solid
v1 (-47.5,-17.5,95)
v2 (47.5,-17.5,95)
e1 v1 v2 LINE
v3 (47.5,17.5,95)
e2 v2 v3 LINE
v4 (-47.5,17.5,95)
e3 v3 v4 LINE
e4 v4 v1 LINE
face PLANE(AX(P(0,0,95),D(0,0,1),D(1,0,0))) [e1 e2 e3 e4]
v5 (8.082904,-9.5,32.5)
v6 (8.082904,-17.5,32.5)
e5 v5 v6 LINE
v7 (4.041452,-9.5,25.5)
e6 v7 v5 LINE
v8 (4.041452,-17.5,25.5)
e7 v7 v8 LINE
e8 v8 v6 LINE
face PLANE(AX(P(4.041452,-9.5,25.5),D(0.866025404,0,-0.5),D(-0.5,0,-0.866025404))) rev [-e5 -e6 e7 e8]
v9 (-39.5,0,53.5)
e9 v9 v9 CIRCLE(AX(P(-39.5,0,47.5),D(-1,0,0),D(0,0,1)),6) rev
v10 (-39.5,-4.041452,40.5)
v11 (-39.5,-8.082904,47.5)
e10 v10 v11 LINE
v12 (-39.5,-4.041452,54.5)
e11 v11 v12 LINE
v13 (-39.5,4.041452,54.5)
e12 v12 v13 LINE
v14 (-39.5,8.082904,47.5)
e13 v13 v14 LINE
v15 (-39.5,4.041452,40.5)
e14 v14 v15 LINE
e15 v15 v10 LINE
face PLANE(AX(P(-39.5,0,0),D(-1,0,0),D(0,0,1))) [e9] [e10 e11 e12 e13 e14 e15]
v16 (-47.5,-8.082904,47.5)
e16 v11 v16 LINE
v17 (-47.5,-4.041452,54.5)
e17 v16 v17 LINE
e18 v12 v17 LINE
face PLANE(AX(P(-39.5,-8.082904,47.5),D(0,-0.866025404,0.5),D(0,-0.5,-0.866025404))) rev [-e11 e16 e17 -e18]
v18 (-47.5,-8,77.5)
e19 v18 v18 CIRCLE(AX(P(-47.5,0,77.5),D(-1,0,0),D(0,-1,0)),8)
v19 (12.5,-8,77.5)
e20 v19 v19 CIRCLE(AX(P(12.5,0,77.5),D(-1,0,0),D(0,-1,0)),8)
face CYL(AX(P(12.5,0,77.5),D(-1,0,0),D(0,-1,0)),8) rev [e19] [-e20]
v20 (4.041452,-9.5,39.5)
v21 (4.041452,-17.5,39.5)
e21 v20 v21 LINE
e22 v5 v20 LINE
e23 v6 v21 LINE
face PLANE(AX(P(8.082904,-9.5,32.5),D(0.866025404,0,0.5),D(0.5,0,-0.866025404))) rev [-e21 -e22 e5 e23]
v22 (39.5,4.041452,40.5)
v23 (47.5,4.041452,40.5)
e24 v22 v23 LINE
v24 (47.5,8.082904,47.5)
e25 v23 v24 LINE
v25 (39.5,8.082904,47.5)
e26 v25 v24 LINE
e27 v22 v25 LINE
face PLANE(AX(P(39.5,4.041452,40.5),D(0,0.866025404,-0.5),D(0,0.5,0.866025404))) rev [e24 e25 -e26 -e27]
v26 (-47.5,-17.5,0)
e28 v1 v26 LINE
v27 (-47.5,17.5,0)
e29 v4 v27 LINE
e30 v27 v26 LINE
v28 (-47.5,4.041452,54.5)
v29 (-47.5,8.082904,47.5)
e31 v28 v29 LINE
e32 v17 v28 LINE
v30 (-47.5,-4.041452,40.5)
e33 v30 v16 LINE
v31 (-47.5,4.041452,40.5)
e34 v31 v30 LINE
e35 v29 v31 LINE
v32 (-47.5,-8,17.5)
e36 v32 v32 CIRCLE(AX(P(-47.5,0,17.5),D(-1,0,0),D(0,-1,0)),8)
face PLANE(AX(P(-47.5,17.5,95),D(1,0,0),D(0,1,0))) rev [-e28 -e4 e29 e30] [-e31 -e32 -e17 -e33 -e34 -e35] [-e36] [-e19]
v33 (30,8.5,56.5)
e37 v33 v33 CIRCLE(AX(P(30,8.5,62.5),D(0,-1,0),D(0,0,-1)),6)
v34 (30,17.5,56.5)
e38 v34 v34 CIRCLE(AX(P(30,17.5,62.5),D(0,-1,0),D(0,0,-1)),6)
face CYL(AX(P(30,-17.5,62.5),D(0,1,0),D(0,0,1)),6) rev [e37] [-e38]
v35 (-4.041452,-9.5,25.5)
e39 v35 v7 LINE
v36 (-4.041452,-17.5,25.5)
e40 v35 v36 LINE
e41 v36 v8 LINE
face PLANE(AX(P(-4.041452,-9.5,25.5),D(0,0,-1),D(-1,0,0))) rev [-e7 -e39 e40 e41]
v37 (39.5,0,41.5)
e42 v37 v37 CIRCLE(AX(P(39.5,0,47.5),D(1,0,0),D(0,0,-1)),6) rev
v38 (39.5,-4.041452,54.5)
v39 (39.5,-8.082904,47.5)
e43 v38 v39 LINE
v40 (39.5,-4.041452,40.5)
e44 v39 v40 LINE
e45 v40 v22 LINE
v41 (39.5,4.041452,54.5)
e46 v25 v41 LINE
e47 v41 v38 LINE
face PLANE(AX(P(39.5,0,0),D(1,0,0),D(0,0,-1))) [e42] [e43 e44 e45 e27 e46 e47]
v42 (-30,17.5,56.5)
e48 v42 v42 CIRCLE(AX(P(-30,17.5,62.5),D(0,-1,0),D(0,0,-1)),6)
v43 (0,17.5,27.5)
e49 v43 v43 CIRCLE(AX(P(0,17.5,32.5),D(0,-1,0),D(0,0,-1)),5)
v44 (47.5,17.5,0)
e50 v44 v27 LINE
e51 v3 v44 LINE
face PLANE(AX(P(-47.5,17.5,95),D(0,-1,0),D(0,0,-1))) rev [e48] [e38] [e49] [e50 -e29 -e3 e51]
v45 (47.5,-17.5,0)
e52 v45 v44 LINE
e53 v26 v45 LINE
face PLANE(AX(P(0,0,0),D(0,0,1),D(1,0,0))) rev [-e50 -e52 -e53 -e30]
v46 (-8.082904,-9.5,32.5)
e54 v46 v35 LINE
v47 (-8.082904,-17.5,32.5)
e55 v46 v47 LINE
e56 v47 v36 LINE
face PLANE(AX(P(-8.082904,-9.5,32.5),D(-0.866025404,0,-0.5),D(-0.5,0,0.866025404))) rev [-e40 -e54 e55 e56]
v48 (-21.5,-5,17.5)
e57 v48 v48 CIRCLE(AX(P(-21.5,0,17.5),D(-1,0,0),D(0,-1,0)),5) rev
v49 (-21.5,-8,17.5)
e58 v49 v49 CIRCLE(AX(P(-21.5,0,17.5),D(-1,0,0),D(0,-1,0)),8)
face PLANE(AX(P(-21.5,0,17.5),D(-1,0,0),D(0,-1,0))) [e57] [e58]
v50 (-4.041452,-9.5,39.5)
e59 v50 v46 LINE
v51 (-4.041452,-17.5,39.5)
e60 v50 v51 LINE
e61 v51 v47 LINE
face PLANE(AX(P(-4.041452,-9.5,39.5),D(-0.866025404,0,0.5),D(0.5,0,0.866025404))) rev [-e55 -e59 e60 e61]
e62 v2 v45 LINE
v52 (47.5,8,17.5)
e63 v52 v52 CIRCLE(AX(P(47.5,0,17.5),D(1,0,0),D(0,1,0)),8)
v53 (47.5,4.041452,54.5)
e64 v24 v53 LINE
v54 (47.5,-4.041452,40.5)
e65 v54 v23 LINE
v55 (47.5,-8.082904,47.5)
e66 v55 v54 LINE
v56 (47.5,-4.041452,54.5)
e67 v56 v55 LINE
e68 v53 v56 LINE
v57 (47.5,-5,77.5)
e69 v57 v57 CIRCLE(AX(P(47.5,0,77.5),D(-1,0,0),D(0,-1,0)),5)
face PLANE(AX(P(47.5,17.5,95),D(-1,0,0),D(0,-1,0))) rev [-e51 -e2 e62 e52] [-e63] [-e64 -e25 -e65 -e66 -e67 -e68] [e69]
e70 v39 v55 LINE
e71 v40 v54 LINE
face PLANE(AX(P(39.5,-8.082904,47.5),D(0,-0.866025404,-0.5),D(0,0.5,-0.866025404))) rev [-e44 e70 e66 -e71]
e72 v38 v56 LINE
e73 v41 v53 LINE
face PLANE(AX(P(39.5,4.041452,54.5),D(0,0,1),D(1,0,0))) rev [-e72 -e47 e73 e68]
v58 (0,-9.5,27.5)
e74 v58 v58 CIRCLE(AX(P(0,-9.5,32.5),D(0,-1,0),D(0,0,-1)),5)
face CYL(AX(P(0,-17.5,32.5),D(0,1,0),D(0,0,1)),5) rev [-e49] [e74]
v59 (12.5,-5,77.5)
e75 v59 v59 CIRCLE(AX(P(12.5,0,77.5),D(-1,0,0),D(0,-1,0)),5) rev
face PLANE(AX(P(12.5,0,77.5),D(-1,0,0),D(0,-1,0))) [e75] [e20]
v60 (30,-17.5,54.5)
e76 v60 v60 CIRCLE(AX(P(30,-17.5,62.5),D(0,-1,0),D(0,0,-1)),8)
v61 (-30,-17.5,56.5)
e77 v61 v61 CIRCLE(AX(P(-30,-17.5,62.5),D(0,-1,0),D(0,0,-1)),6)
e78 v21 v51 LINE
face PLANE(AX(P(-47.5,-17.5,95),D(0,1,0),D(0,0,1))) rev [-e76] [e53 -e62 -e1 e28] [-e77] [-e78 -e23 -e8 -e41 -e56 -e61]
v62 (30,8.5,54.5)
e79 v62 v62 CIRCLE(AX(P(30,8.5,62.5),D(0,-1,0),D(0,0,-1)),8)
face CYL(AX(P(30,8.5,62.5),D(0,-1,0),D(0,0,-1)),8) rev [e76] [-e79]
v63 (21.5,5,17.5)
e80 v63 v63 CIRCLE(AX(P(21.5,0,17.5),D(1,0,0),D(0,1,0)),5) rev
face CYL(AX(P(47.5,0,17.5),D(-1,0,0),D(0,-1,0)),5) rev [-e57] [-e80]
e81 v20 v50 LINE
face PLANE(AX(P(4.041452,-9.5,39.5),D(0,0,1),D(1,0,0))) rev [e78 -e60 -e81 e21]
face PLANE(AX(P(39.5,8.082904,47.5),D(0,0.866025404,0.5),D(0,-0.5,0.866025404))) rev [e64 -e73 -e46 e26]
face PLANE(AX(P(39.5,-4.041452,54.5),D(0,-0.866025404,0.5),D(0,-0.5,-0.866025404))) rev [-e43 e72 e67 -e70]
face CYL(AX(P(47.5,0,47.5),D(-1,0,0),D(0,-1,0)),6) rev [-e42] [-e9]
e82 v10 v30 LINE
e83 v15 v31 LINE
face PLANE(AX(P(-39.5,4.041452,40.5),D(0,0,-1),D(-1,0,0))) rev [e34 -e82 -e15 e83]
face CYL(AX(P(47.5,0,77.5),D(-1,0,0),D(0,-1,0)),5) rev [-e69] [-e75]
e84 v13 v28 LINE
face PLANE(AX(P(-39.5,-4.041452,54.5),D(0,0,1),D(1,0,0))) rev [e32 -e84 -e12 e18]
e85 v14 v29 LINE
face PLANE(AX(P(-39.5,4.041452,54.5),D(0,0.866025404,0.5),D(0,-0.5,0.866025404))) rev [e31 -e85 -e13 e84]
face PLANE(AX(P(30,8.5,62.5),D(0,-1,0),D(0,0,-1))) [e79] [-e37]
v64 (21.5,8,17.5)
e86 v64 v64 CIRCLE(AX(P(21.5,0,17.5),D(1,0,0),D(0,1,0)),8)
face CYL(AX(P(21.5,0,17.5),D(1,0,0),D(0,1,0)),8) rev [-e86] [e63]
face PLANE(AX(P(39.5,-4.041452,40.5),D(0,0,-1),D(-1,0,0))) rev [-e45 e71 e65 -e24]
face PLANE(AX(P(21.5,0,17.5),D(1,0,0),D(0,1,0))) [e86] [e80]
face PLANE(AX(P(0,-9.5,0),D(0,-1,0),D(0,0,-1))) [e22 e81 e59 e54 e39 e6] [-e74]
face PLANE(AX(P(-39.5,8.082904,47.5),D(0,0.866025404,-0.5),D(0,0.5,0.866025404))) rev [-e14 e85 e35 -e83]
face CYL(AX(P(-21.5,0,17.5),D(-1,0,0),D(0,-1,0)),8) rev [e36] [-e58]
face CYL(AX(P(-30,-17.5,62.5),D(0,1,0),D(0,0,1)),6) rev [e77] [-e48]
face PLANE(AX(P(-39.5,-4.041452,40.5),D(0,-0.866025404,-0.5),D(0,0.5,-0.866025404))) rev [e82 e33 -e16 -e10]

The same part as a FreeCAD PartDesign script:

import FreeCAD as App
import Part
import Sketcher

V = App.Vector
Q = App.Units.Quantity


def add_polygon(sketch, points):
    """Adds a closed chain of lines whose ends are joined by coincident constraints."""
    first, n = sketch.GeometryCount, len(points)
    for a, b in zip(points, points[1:] + points[:1]):
        sketch.addGeometry(Part.LineSegment(App.Vector(*a, 0), App.Vector(*b, 0)), False)
    for i in range(n):
        sketch.addConstraint(Sketcher.Constraint("Coincident", first + i, 2, first + (i + 1) % n, 1))

doc = App.newDocument("Part")
body = doc.addObject("PartDesign::Body", "Body")

# Sketch on XY plane
sketch1 = body.newObject("Sketcher::SketchObject", "Sketch")
sketch1.AttachmentSupport = (doc.getObject("XY_Plane"), [""])
sketch1.MapMode = "FlatFace"
add_polygon(sketch1, [(-48, 18), (-48, -18), (48, -18), (48, 18)])  # lines 0-3
sketch1.addConstraint([
    Sketcher.Constraint("Vertical", 0),
    Sketcher.Constraint("Horizontal", 1),
    Sketcher.Constraint("Vertical", 2),
    Sketcher.Constraint("Horizontal", 3),
    Sketcher.Constraint("Symmetric", 0, 2, 2, 2, -1, 1),
    Sketcher.Constraint("DistanceX", 1, 1, 1, 2, Q("95 mm")),
    Sketcher.Constraint("DistanceY", 0, 2, 0, 1, Q("35 mm")),
])
pad1 = body.newObject("PartDesign::Pad", "Pad")
pad1.Profile = sketch1
pad1.Length = 95

# Sketch on YZ plane
sketch2 = body.newObject("Sketcher::SketchObject", "Sketch001")
sketch2.AttachmentSupport = (doc.getObject("YZ_Plane"), [""])
sketch2.MapMode = "FlatFace"
sketch2.AttachmentOffset = App.Placement(V(0, 0, -47.5), App.Rotation())
sketch2.addGeometry([
    Part.Circle(V(0, 18, 0), V(0, 0, 1), 5),
    Part.Circle(V(0, 48, 0), V(0, 0, 1), 6),
    Part.Circle(V(0, 78, 0), V(0, 0, 1), 5),
], False)
sketch2.addConstraint([
    Sketcher.Constraint("Equal", 0, 2),
    Sketcher.Constraint("PointOnObject", 0, 3, -2),
    Sketcher.Constraint("PointOnObject", 1, 3, -2),
    Sketcher.Constraint("PointOnObject", 2, 3, -2),
    Sketcher.Constraint("Diameter", 0, Q("10 mm")),
    Sketcher.Constraint("Diameter", 1, Q("12 mm")),
    Sketcher.Constraint("DistanceY", 0, 3, 1, 3, Q("30 mm")),
    Sketcher.Constraint("DistanceY", 1, 3, 2, 3, Q("30 mm")),
    Sketcher.Constraint("DistanceY", -1, 1, 0, 3, Q("17.5 mm")),
])
pocket1 = body.newObject("PartDesign::Pocket", "Pocket")
pocket1.Profile = sketch2
pocket1.Length = 95
pocket1.Reversed = True

# Sketch on YZ plane
sketch3 = body.newObject("Sketcher::SketchObject", "Sketch002")
sketch3.AttachmentSupport = (doc.getObject("YZ_Plane"), [""])
sketch3.MapMode = "FlatFace"
sketch3.AttachmentOffset = App.Placement(V(0, 0, -47.5), App.Rotation())
sketch3.addGeometry(Part.Circle(V(0, 18, 0), V(0, 0, 1), 8), False)
sketch3.addConstraint([
    Sketcher.Constraint("PointOnObject", 0, 3, -2),
    Sketcher.Constraint("Diameter", 0, Q("16 mm")),
    Sketcher.Constraint("DistanceY", -1, 1, 0, 3, Q("17.5 mm")),
])
pocket2 = body.newObject("PartDesign::Pocket", "Pocket001")
pocket2.Profile = sketch3
pocket2.Length = 26
pocket2.Reversed = True

# Sketch on YZ plane
sketch4 = body.newObject("Sketcher::SketchObject", "Sketch003")
sketch4.AttachmentSupport = (doc.getObject("YZ_Plane"), [""])
sketch4.MapMode = "FlatFace"
sketch4.AttachmentOffset = App.Placement(V(0, 0, -47.5), App.Rotation())
sketch4.addGeometry(Part.Circle(V(0, 78, 0), V(0, 0, 1), 8), False)
sketch4.addConstraint([
    Sketcher.Constraint("PointOnObject", 0, 3, -2),
    Sketcher.Constraint("Diameter", 0, Q("16 mm")),
    Sketcher.Constraint("DistanceY", -1, 1, 0, 3, Q("77.5 mm")),
])
pocket3 = body.newObject("PartDesign::Pocket", "Pocket002")
pocket3.Profile = sketch4
pocket3.Length = 60
pocket3.Reversed = True

# Sketch on YZ plane
sketch5 = body.newObject("Sketcher::SketchObject", "Sketch004")
sketch5.AttachmentSupport = (doc.getObject("YZ_Plane"), [""])
sketch5.MapMode = "FlatFace"
sketch5.AttachmentOffset = App.Placement(V(0, 0, 47.5), App.Rotation())
sketch5.addGeometry(Part.Circle(V(0, 18, 0), V(0, 0, 1), 8), False)
sketch5.addConstraint([
    Sketcher.Constraint("PointOnObject", 0, 3, -2),
    Sketcher.Constraint("Diameter", 0, Q("16 mm")),
    Sketcher.Constraint("DistanceY", -1, 1, 0, 3, Q("17.5 mm")),
])
pocket4 = body.newObject("PartDesign::Pocket", "Pocket003")
pocket4.Profile = sketch5
pocket4.Length = 26

# Sketch on XZ plane
sketch6 = body.newObject("Sketcher::SketchObject", "Sketch005")
sketch6.AttachmentSupport = (doc.getObject("XZ_Plane"), [""])
sketch6.MapMode = "FlatFace"
sketch6.AttachmentOffset = App.Placement(V(0, 0, -17.5), App.Rotation())
sketch6.addGeometry([
    Part.Circle(V(0, 32, 0), V(0, 0, 1), 5),
    Part.Circle(V(-30, 62, 0), V(0, 0, 1), 6),
    Part.Circle(V(30, 62, 0), V(0, 0, 1), 6),
], False)
sketch6.addConstraint([
    Sketcher.Constraint("Equal", 1, 2),
    Sketcher.Constraint("Symmetric", 1, 3, 2, 3, -2),
    Sketcher.Constraint("PointOnObject", 0, 3, -2),
    Sketcher.Constraint("Diameter", 0, Q("10 mm")),
    Sketcher.Constraint("Diameter", 1, Q("12 mm")),
    Sketcher.Constraint("DistanceX", 1, 3, -1, 1, Q("30 mm")),
    Sketcher.Constraint("DistanceY", 0, 3, 1, 3, Q("30 mm")),
    Sketcher.Constraint("DistanceY", -1, 1, 0, 3, Q("32.5 mm")),
])
pocket5 = body.newObject("PartDesign::Pocket", "Pocket004")
pocket5.Profile = sketch6
pocket5.Length = 35
pocket5.Reversed = True

# Sketch on XZ plane
sketch7 = body.newObject("Sketcher::SketchObject", "Sketch006")
sketch7.AttachmentSupport = (doc.getObject("XZ_Plane"), [""])
sketch7.MapMode = "FlatFace"
sketch7.AttachmentOffset = App.Placement(V(0, 0, 17.5), App.Rotation())
sketch7.addGeometry(Part.Circle(V(30, 62, 0), V(0, 0, 1), 8), False)
sketch7.addConstraint([
    Sketcher.Constraint("Diameter", 0, Q("16 mm")),
    Sketcher.Constraint("DistanceX", -1, 1, 0, 3, Q("30 mm")),
    Sketcher.Constraint("DistanceY", -1, 1, 0, 3, Q("62.5 mm")),
])
pocket6 = body.newObject("PartDesign::Pocket", "Pocket005")
pocket6.Profile = sketch7
pocket6.Length = 26

# Sketch on XZ plane
sketch8 = body.newObject("Sketcher::SketchObject", "Sketch007")
sketch8.AttachmentSupport = (doc.getObject("XZ_Plane"), [""])
sketch8.MapMode = "FlatFace"
sketch8.AttachmentOffset = App.Placement(V(0, 0, 17.5), App.Rotation())
add_polygon(sketch8, [(8, 32), (4, 40), (-4, 40), (-8, 32), (-4, 26), (4, 26)])  # lines 0-5
sketch8.addConstraint([
    Sketcher.Constraint("Horizontal", 1),
    Sketcher.Constraint("Horizontal", 4),
    Sketcher.Constraint("Symmetric", 2, 2, 5, 2, -2),
    Sketcher.Constraint("Parallel", 0, 3),
    Sketcher.Constraint("Parallel", 2, 5),
    Sketcher.Constraint("Vertical", 1, 2, 3, 2),
    Sketcher.Constraint("Vertical", 0, 2, 4, 2),
    Sketcher.Constraint("Angle", 0, Q("120 deg")),
    Sketcher.Constraint("DistanceY", 2, 2, 1, 2, Q("7 mm")),
    Sketcher.Constraint("DistanceY", -1, 1, 0, 2, Q("39.5 mm")),
    Sketcher.Constraint("DistanceX", 1, 2, 1, 1, Q("8.082904 mm")),
])
pocket7 = body.newObject("PartDesign::Pocket", "Pocket006")
pocket7.Profile = sketch8
pocket7.Length = 8

# Sketch on YZ plane
sketch9 = body.newObject("Sketcher::SketchObject", "Sketch008")
sketch9.AttachmentSupport = (doc.getObject("YZ_Plane"), [""])
sketch9.MapMode = "FlatFace"
sketch9.AttachmentOffset = App.Placement(V(0, 0, -47.5), App.Rotation())
add_polygon(sketch9, [(-8, 48), (-4, 54), (4, 54), (8, 48), (4, 40), (-4, 40)])  # lines 0-5
sketch9.addConstraint([
    Sketcher.Constraint("Horizontal", 1),
    Sketcher.Constraint("Horizontal", 4),
    Sketcher.Constraint("Symmetric", 2, 2, 5, 2, -2),
    Sketcher.Constraint("Parallel", 0, 3),
    Sketcher.Constraint("Parallel", 2, 5),
    Sketcher.Constraint("Vertical", 1, 2, 3, 2),
    Sketcher.Constraint("Vertical", 0, 2, 4, 2),
    Sketcher.Constraint("Angle", 0, Q("60 deg")),
    Sketcher.Constraint("DistanceY", 2, 2, 1, 2, Q("7 mm")),
    Sketcher.Constraint("DistanceY", -1, 1, 0, 2, Q("54.5 mm")),
    Sketcher.Constraint("DistanceX", 1, 1, 1, 2, Q("8.082904 mm")),
])
pocket8 = body.newObject("PartDesign::Pocket", "Pocket007")
pocket8.Profile = sketch9
pocket8.Length = 8
pocket8.Reversed = True

# Sketch on YZ plane
sketch10 = body.newObject("Sketcher::SketchObject", "Sketch009")
sketch10.AttachmentSupport = (doc.getObject("YZ_Plane"), [""])
sketch10.MapMode = "FlatFace"
sketch10.AttachmentOffset = App.Placement(V(0, 0, 47.5), App.Rotation())
add_polygon(sketch10, [(-8, 48), (-4, 40), (4, 40), (8, 48), (4, 54), (-4, 54)])  # lines 0-5
sketch10.addConstraint([
    Sketcher.Constraint("Horizontal", 1),
    Sketcher.Constraint("Horizontal", 4),
    Sketcher.Constraint("Symmetric", 2, 2, 5, 2, -2),
    Sketcher.Constraint("Parallel", 0, 3),
    Sketcher.Constraint("Parallel", 2, 5),
    Sketcher.Constraint("Vertical", 1, 2, 3, 2),
    Sketcher.Constraint("Vertical", 0, 2, 4, 2),
    Sketcher.Constraint("Angle", 0, Q("-60 deg")),
    Sketcher.Constraint("DistanceY", 1, 2, 2, 2, Q("7 mm")),
    Sketcher.Constraint("DistanceY", -1, 1, 0, 2, Q("40.5 mm")),
    Sketcher.Constraint("DistanceX", 1, 1, 1, 2, Q("8.082904 mm")),
])
pocket9 = body.newObject("PartDesign::Pocket", "Pocket008")
pocket9.Profile = sketch10
pocket9.Length = 8

doc.recompute()
